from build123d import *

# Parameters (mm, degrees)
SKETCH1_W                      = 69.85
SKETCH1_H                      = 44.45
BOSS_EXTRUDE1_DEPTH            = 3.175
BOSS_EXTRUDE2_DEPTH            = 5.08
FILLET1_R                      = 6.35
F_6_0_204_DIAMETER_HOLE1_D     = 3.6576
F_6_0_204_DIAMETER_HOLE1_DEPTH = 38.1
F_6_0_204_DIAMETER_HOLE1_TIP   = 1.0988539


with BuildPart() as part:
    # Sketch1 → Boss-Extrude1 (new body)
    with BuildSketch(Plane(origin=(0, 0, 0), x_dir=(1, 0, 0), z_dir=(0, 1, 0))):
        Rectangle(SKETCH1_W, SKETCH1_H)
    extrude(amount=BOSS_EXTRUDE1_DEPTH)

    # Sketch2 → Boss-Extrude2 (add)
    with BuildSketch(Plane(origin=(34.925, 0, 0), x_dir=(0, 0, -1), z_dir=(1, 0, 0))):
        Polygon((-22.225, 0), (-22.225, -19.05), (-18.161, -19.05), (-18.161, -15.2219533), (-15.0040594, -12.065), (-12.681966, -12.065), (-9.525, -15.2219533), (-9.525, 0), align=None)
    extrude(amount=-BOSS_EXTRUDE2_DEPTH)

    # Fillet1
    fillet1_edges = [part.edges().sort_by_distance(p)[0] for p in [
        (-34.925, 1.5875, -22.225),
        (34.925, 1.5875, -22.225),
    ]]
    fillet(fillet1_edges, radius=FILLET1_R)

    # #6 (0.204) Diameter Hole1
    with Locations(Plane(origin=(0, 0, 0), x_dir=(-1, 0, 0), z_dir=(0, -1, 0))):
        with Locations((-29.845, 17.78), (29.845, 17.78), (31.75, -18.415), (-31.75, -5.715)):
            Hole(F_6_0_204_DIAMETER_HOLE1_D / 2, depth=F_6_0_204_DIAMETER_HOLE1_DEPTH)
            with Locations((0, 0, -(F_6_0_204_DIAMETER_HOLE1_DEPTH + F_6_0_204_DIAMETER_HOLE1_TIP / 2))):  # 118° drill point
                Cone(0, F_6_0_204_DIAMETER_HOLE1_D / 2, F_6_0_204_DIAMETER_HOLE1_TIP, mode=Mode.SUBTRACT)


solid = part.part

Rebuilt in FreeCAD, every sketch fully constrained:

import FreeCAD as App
import Part
import Sketcher
from FreeCAD import Vector
Q = App.Units.Quantity


def edges_at(feature, points):
    """Names of the edges that pass closest to the given points."""
    edges = feature.Shape.Edges
    near = lambda p: min(range(len(edges)), key=lambda i: edges[i].distToShape(Part.Vertex(*p))[0])
    return sorted({f"Edge{near(p) + 1}" for p in points})

doc = App.newDocument("Part")
body = doc.addObject("PartDesign::Body", "Body")

sketch1 = body.newObject("Sketcher::SketchObject", "Sketch")
sketch1.AttachmentSupport = (doc.getObject("XZ_Plane"), [""])
sketch1.MapMode = "FlatFace"
sketch1.addGeometry(Part.LineSegment(Vector(-35, -22, 0), Vector(-35, 22, 0)), False)
sketch1.addGeometry(Part.LineSegment(Vector(-35, 22, 0), Vector(35, 22, 0)), False)
sketch1.addGeometry(Part.LineSegment(Vector(35, 22, 0), Vector(35, -22, 0)), False)
sketch1.addGeometry(Part.LineSegment(Vector(35, -22, 0), Vector(-35, -22, 0)), False)
sketch1.addConstraint(Sketcher.Constraint("Coincident", 0, 2, 1, 1))
sketch1.addConstraint(Sketcher.Constraint("Coincident", 1, 2, 2, 1))
sketch1.addConstraint(Sketcher.Constraint("Coincident", 2, 2, 3, 1))
sketch1.addConstraint(Sketcher.Constraint("Coincident", 3, 2, 0, 1))
sketch1.addConstraint(Sketcher.Constraint("Vertical", 0))
sketch1.addConstraint(Sketcher.Constraint("Horizontal", 1))
sketch1.addConstraint(Sketcher.Constraint("Vertical", 2))
sketch1.addConstraint(Sketcher.Constraint("Horizontal", 3))
sketch1.addConstraint(Sketcher.Constraint("Symmetric", 0, 2, 2, 2, -1, 1))
sketch1.addConstraint(Sketcher.Constraint("DistanceX", 1, 1, 1, 2, Q("2.75 in")))
sketch1.addConstraint(Sketcher.Constraint("DistanceY", 0, 1, 0, 2, Q("1.75 in")))
pad1 = body.newObject("PartDesign::Pad", "Pad")
pad1.Profile = sketch1
pad1.Length = Q("0.125 in")
pad1.Reversed = True

sketch2 = body.newObject("Sketcher::SketchObject", "Sketch001")
sketch2.AttachmentSupport = (doc.getObject("YZ_Plane"), [""])
sketch2.MapMode = "FlatFace"
sketch2.AttachmentOffset = App.Placement(Vector(0, 0, 1.375 * 25.4), App.Rotation())
sketch2.addGeometry(Part.LineSegment(Vector(0, 22.2, 0), Vector(-19.1, 22.2, 0)), False)
sketch2.addGeometry(Part.LineSegment(Vector(-19.1, 22.2, 0), Vector(-19.1, 18.2, 0)), False)
sketch2.addGeometry(Part.LineSegment(Vector(-19.1, 18.2, 0), Vector(-15.2, 18.2, 0)), False)
sketch2.addGeometry(Part.LineSegment(Vector(-15.2, 18.2, 0), Vector(-12.1, 15, 0)), False)
sketch2.addGeometry(Part.LineSegment(Vector(-12.1, 15, 0), Vector(-12.1, 12.7, 0)), False)
sketch2.addGeometry(Part.LineSegment(Vector(-12.1, 12.7, 0), Vector(-15.2, 9.5, 0)), False)
sketch2.addGeometry(Part.LineSegment(Vector(-15.2, 9.5, 0), Vector(0, 9.5, 0)), False)
sketch2.addGeometry(Part.LineSegment(Vector(0, 9.5, 0), Vector(0, 22.2, 0)), False)
sketch2.addConstraint(Sketcher.Constraint("Coincident", 0, 2, 1, 1))
sketch2.addConstraint(Sketcher.Constraint("Coincident", 1, 2, 2, 1))
sketch2.addConstraint(Sketcher.Constraint("Coincident", 2, 2, 3, 1))
sketch2.addConstraint(Sketcher.Constraint("Coincident", 3, 2, 4, 1))
sketch2.addConstraint(Sketcher.Constraint("Coincident", 4, 2, 5, 1))
sketch2.addConstraint(Sketcher.Constraint("Coincident", 5, 2, 6, 1))
sketch2.addConstraint(Sketcher.Constraint("Coincident", 6, 2, 7, 1))
sketch2.addConstraint(Sketcher.Constraint("Coincident", 7, 2, 0, 1))
sketch2.addConstraint(Sketcher.Constraint("Horizontal", 0))
sketch2.addConstraint(Sketcher.Constraint("Vertical", 1))
sketch2.addConstraint(Sketcher.Constraint("Horizontal", 2))
sketch2.addConstraint(Sketcher.Constraint("Vertical", 4))
sketch2.addConstraint(Sketcher.Constraint("Horizontal", 6))
sketch2.addConstraint(Sketcher.Constraint("Vertical", 7))
sketch2.addConstraint(Sketcher.Constraint("PointOnObject", 6, 2, -2))
sketch2.addConstraint(Sketcher.Constraint("Perpendicular", 3, 5))
sketch2.addConstraint(Sketcher.Constraint("Vertical", 2, 2, 5, 2))
sketch2.addConstraint(Sketcher.Constraint("DistanceY", 7, 1, 7, 2, Q("0.5 in")))
sketch2.addConstraint(Sketcher.Constraint("DistanceX", 0, 2, 0, 1, Q("0.75 in")))
sketch2.addConstraint(Sketcher.Constraint("DistanceY", 1, 2, 1, 1, Q("0.16 in")))
sketch2.addConstraint(Sketcher.Constraint("DistanceY", -1, 1, 0, 2, Q("0.875 in")))
sketch2.addConstraint(Sketcher.Constraint("DistanceX", 3, 2, -1, 1, Q("0.475 in")))
sketch2.addConstraint(Sketcher.Constraint("DistanceX", 2, 1, 2, 2, Q("3.828047 mm")))
sketch2.addConstraint(Sketcher.Constraint("DistanceY", -1, 1, 3, 2, Q("15.004059 mm")))
pad2 = body.newObject("PartDesign::Pad", "Pad001")
pad2.Profile = sketch2
pad2.Length = Q("0.2 in")
pad2.Reversed = True
doc.recompute()

fillet = body.newObject("PartDesign::Fillet", "Fillet")
fillet.Base = (pad2, edges_at(pad2, [(-34.925, 1.587, -22.225), (34.925, 1.587, -22.225)]))
fillet.Radius = Q("0.25 in")

sketch3 = body.newObject("Sketcher::SketchObject", "Sketch002")
sketch3.AttachmentSupport = (doc.getObject("XZ_Plane"), [""])
sketch3.MapMode = "FlatFace"
sketch3.addGeometry(Part.Circle(Vector(29.8, -17.8, 0), Vector(0, 0, 1), 1.8), False)
sketch3.addGeometry(Part.Circle(Vector(-29.8, -17.8, 0), Vector(0, 0, 1), 1.8), False)
sketch3.addGeometry(Part.Circle(Vector(-31.8, 18.4, 0), Vector(0, 0, 1), 1.8), False)
sketch3.addGeometry(Part.Circle(Vector(31.8, 5.7, 0), Vector(0, 0, 1), 1.8), False)
sketch3.addConstraint(Sketcher.Constraint("Equal", 0, 1))
sketch3.addConstraint(Sketcher.Constraint("Equal", 1, 2))
sketch3.addConstraint(Sketcher.Constraint("Equal", 2, 3))
sketch3.addConstraint(Sketcher.Constraint("Symmetric", 0, 3, 1, 3, -2))
sketch3.addConstraint(Sketcher.Constraint("Diameter", 0, Q("0.144 in")))
sketch3.addConstraint(Sketcher.Constraint("DistanceY", 0, 3, -1, 1, Q("0.7 in")))
sketch3.addConstraint(Sketcher.Constraint("DistanceX", 2, 3, 3, 3, Q("2.5 in")))
sketch3.addConstraint(Sketcher.Constraint("DistanceY", 3, 3, 2, 3, Q("0.5 in")))
sketch3.addConstraint(Sketcher.Constraint("DistanceX", 2, 3, -1, 1, Q("1.25 in")))
sketch3.addConstraint(Sketcher.Constraint("DistanceX", 1, 3, 0, 3, Q("2.35 in")))
sketch3.addConstraint(Sketcher.Constraint("DistanceY", -1, 1, 2, 3, Q("0.725 in")))
doc.recompute()
hole = body.newObject("PartDesign::Hole", "Hole")
hole.Profile = sketch3
hole.ThreadType = "None"
hole.Diameter = Q("0.144 in")
hole.DepthType = "Dimension"
hole.Depth = Q("1.5 in")
hole.DrillPoint = "Angled"
hole.DrillPointAngle = 118

doc.recompute()
